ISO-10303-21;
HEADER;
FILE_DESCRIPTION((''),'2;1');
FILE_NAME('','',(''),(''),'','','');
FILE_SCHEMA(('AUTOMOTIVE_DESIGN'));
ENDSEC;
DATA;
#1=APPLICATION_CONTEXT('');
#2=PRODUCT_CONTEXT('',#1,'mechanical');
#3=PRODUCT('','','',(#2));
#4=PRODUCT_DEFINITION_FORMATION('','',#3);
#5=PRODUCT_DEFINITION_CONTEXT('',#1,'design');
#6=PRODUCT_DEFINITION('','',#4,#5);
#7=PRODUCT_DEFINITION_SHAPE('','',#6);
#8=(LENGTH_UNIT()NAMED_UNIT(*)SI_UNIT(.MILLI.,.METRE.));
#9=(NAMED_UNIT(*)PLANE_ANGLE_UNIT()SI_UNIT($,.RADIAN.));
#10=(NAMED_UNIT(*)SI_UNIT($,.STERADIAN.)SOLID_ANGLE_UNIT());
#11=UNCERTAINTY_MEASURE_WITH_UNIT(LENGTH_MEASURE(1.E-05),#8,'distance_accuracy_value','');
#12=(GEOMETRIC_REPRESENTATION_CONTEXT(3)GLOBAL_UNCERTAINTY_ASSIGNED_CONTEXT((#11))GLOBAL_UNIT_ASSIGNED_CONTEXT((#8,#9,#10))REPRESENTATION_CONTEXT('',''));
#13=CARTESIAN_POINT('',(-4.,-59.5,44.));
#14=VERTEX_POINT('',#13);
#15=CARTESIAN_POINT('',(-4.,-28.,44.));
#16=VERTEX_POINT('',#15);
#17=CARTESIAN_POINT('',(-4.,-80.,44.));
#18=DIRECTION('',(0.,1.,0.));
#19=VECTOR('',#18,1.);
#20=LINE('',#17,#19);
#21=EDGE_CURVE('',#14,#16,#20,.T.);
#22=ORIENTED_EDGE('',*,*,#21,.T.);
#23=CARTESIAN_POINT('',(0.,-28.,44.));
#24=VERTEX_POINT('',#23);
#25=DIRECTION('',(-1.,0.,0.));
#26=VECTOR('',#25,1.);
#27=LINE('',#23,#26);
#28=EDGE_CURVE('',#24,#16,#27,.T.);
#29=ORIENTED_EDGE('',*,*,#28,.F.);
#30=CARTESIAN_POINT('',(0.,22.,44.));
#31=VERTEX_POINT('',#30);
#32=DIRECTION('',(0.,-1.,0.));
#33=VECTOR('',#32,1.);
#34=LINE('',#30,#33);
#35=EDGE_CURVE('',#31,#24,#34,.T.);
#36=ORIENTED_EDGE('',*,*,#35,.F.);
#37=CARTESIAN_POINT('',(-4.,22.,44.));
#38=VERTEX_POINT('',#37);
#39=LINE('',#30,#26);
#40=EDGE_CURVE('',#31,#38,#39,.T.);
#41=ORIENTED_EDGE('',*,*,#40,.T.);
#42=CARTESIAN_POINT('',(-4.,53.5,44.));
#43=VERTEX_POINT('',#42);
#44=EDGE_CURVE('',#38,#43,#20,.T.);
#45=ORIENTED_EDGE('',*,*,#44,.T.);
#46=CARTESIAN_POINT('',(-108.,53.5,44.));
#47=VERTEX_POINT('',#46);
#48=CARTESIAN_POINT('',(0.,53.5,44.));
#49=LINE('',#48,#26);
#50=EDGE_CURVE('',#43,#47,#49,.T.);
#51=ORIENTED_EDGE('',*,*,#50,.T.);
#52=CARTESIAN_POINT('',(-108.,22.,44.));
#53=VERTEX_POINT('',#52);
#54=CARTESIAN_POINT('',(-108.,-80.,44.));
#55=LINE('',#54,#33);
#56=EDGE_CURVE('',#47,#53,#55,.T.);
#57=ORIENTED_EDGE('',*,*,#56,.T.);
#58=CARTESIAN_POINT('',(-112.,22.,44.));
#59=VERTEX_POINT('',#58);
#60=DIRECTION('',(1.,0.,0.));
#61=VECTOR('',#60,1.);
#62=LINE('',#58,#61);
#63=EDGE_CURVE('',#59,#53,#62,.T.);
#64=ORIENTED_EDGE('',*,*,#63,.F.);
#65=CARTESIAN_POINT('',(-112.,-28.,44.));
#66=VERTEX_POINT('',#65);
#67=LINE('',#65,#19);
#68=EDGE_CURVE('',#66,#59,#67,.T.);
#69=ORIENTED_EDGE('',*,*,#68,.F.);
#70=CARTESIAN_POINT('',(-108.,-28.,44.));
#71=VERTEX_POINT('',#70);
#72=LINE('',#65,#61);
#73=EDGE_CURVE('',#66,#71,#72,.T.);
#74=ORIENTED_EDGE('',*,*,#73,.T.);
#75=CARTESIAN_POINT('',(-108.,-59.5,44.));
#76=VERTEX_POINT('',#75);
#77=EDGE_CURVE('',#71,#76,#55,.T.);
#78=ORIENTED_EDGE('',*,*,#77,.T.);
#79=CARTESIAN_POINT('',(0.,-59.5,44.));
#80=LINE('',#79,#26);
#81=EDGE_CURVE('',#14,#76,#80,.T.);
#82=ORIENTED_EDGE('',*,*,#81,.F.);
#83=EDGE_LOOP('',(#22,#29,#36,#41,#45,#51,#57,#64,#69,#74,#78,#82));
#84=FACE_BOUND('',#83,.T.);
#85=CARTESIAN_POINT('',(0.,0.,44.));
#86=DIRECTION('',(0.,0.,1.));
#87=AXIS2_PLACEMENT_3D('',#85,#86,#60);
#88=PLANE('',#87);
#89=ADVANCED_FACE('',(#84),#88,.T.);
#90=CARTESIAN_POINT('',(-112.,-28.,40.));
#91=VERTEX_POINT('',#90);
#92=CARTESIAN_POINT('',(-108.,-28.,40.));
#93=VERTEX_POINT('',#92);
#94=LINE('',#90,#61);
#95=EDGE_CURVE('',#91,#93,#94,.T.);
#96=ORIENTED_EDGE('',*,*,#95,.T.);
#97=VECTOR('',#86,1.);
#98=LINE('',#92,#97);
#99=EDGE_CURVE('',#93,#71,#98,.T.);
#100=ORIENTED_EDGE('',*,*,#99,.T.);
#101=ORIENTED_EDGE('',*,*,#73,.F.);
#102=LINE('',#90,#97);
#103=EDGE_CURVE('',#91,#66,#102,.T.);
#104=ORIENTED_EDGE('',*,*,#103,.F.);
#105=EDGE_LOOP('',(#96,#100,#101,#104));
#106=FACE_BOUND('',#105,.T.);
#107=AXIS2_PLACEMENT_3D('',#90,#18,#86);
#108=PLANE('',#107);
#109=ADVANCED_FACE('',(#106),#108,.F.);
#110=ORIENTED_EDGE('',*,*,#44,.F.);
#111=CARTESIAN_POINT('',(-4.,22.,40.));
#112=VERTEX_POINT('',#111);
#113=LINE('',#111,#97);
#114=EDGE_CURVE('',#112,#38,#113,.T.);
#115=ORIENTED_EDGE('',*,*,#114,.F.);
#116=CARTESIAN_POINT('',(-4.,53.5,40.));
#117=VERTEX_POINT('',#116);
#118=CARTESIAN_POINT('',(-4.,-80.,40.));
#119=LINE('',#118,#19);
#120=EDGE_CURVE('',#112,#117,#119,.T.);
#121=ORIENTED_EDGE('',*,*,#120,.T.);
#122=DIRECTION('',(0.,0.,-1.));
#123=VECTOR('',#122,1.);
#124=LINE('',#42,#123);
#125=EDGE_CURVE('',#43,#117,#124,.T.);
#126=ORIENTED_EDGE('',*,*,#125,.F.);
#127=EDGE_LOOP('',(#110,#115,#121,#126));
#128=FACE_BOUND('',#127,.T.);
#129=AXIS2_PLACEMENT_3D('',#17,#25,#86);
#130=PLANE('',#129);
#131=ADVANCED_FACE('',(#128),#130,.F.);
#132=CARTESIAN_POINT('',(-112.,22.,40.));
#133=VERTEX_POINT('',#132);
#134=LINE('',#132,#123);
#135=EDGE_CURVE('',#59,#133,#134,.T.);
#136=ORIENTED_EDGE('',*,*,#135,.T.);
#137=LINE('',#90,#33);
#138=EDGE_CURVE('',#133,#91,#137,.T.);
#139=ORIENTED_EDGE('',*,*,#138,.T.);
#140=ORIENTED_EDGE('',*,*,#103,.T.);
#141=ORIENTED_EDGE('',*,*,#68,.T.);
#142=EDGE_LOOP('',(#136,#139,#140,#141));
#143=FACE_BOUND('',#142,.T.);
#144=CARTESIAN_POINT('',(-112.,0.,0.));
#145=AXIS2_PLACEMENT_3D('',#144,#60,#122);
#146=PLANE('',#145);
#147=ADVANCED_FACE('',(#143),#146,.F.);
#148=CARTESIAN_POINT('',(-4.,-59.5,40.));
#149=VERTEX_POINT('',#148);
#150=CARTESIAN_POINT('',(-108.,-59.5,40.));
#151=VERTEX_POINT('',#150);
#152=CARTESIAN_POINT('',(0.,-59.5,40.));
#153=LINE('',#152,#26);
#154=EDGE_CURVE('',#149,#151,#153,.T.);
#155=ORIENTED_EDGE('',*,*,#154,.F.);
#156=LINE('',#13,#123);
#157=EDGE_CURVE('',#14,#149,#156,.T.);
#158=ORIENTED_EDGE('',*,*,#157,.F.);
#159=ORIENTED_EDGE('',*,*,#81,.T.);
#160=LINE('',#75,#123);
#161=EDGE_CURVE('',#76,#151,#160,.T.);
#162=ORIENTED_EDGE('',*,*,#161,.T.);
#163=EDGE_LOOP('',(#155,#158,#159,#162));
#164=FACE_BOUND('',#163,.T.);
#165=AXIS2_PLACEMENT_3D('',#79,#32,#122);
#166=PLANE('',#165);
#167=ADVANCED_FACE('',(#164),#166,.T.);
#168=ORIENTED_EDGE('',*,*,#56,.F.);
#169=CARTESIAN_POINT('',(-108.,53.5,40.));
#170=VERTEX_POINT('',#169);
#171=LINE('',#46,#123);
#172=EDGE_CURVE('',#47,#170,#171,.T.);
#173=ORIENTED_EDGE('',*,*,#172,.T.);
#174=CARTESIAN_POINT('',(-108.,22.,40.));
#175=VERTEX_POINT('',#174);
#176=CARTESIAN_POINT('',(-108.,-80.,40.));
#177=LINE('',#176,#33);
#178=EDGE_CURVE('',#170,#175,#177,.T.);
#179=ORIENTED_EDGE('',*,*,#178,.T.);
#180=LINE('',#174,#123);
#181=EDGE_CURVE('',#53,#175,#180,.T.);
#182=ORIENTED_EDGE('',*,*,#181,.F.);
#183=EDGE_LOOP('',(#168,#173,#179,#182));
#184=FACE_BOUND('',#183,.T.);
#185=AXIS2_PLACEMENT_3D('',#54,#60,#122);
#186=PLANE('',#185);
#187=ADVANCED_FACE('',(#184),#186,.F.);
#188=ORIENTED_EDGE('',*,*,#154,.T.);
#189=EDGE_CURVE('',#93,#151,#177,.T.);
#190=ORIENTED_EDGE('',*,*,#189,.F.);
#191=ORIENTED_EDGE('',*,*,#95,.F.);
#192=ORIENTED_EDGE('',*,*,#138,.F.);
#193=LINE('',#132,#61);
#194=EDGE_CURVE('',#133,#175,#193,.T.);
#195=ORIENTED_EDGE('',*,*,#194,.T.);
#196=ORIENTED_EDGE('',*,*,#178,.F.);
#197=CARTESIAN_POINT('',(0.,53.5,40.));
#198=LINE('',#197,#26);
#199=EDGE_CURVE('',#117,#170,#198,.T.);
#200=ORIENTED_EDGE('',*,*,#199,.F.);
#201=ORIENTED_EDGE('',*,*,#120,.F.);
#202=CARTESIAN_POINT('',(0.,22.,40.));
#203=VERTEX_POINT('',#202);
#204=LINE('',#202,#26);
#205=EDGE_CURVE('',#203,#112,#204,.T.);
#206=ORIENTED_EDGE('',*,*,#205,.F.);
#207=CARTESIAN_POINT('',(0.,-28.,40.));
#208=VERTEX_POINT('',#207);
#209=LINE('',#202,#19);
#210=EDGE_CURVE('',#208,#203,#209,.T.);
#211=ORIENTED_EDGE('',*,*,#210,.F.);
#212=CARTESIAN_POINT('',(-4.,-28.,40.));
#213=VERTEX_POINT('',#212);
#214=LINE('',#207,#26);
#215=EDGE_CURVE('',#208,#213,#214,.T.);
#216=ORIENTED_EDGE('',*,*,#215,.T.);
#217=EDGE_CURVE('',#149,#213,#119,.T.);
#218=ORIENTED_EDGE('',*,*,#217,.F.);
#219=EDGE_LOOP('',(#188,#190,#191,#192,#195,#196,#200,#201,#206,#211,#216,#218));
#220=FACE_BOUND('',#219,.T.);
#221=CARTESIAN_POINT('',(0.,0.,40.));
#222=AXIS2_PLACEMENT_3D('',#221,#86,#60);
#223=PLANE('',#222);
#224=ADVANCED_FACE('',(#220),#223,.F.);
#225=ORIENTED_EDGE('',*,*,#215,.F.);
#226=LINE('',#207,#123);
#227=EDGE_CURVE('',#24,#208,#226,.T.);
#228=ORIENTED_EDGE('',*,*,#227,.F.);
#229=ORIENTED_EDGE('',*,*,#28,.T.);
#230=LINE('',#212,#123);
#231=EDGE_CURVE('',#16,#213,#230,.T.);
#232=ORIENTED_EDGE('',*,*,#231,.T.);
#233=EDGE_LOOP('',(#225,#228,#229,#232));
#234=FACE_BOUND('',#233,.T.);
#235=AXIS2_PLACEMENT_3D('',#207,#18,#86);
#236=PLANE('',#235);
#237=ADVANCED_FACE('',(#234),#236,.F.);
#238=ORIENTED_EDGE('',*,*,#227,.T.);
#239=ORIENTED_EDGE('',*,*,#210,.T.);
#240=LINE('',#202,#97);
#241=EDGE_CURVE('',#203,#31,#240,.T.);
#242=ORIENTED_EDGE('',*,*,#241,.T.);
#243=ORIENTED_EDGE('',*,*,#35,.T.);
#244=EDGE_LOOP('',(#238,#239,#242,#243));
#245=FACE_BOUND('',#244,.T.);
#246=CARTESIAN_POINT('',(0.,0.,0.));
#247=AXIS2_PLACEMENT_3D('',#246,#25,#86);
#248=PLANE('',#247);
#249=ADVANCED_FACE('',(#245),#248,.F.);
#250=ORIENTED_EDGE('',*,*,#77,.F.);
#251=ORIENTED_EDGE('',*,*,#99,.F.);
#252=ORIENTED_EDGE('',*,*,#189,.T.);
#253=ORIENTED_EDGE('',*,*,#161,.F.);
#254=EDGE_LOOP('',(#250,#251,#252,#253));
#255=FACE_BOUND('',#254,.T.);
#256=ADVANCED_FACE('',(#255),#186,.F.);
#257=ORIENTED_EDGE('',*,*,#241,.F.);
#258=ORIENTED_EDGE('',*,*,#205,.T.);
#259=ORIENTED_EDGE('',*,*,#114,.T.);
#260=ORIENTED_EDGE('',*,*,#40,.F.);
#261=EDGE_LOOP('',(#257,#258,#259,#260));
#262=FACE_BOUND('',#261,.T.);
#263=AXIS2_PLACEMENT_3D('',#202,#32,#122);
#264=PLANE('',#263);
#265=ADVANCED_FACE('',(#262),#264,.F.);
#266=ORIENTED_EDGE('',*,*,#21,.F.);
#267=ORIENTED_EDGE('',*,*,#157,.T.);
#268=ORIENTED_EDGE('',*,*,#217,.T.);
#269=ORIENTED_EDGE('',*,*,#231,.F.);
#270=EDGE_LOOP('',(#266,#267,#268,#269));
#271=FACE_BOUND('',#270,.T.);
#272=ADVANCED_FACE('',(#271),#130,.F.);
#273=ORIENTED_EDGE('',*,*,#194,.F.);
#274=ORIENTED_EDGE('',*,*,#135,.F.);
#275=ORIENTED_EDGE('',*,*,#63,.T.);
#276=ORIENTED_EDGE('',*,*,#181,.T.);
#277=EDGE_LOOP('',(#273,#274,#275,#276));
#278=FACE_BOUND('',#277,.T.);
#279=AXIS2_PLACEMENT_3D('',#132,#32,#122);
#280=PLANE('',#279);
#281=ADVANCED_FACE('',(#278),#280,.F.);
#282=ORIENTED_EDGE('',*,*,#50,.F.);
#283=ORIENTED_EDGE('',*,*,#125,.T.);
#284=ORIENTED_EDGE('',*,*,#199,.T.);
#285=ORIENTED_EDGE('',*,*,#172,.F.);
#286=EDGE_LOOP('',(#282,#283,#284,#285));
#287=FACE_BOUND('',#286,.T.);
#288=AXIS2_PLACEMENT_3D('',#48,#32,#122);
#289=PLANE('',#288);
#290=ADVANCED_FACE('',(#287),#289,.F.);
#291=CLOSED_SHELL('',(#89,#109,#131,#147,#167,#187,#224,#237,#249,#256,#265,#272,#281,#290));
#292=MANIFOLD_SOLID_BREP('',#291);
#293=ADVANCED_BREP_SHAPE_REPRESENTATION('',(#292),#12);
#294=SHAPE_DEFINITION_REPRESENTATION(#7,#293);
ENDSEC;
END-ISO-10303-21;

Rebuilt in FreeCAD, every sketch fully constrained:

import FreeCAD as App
import Part
import Sketcher
from FreeCAD import Vector
Q = App.Units.Quantity


def add_polygon(sketch, points):
    """Adds a closed chain of lines whose ends are joined by coincident constraints."""
    first, n = sketch.GeometryCount, len(points)
    for a, b in zip(points, points[1:] + points[:1]):
        sketch.addGeometry(Part.LineSegment(App.Vector(*a, 0), App.Vector(*b, 0)), False)
    for i in range(n):
        sketch.addConstraint(Sketcher.Constraint("Coincident", first + i, 2, first + (i + 1) % n, 1))

doc = App.newDocument("Part")
body = doc.addObject("PartDesign::Body", "Body")

# Sketch on XY plane
sketch1 = body.newObject("Sketcher::SketchObject", "Sketch")
sketch1.AttachmentSupport = (doc.getObject("XY_Plane"), [""])
sketch1.MapMode = "FlatFace"
sketch1.AttachmentOffset = App.Placement(Vector(0, 0, 40), App.Rotation())
add_polygon(sketch1, [(-108, 83), (-108, -80), (-4, -80), (-4, 83)])  # lines 0-3
sketch1.addConstraint(Sketcher.Constraint("Vertical", 0))
sketch1.addConstraint(Sketcher.Constraint("Horizontal", 1))
sketch1.addConstraint(Sketcher.Constraint("Vertical", 2))
sketch1.addConstraint(Sketcher.Constraint("Horizontal", 3))
sketch1.addConstraint(Sketcher.Constraint("DistanceX", 1, 1, 1, 2, Q("104 mm")))
sketch1.addConstraint(Sketcher.Constraint("DistanceY", 0, 2, 0, 1, Q("163 mm")))
sketch1.addConstraint(Sketcher.Constraint("DistanceX", 0, 2, -1, 1, Q("108 mm")))
sketch1.addConstraint(Sketcher.Constraint("DistanceY", 0, 2, -1, 1, Q("80 mm")))
pad1 = body.newObject("PartDesign::Pad", "Pad")
pad1.Profile = sketch1
pad1.Length = 4

# Sketch on XY plane
sketch2 = body.newObject("Sketcher::SketchObject", "Sketch001")
sketch2.AttachmentSupport = (doc.getObject("XY_Plane"), [""])
sketch2.MapMode = "FlatFace"
sketch2.AttachmentOffset = App.Placement(Vector(0, 0, 40), App.Rotation())
add_polygon(sketch2, [(-4, 83), (-4, 54), (-108, 54), (-108, 83)])  # lines 0-3
add_polygon(sketch2, [(-4, -60), (-4, -80), (-108, -80), (-108, -60)])  # lines 4-7
sketch2.addConstraint(Sketcher.Constraint("Vertical", 0))
sketch2.addConstraint(Sketcher.Constraint("Horizontal", 1))
sketch2.addConstraint(Sketcher.Constraint("Vertical", 2))
sketch2.addConstraint(Sketcher.Constraint("Horizontal", 3))
sketch2.addConstraint(Sketcher.Constraint("Vertical", 4))
sketch2.addConstraint(Sketcher.Constraint("Horizontal", 5))
sketch2.addConstraint(Sketcher.Constraint("Vertical", 6))
sketch2.addConstraint(Sketcher.Constraint("Horizontal", 7))
sketch2.addConstraint(Sketcher.Constraint("Vertical", 3, 2, 4, 2))
sketch2.addConstraint(Sketcher.Constraint("Vertical", 2, 2, 5, 2))
sketch2.addConstraint(Sketcher.Constraint("DistanceX", 1, 2, 1, 1, Q("104 mm")))
sketch2.addConstraint(Sketcher.Constraint("DistanceY", 0, 2, 0, 1, Q("29.5 mm")))
sketch2.addConstraint(Sketcher.Constraint("DistanceY", 4, 2, 4, 1, Q("20.5 mm")))
sketch2.addConstraint(Sketcher.Constraint("DistanceX", 0, 2, -1, 1, Q("4 mm")))
sketch2.addConstraint(Sketcher.Constraint("DistanceY", -1, 1, 2, 2, Q("83 mm")))
sketch2.addConstraint(Sketcher.Constraint("DistanceY", 4, 2, -1, 1, Q("80 mm")))
pocket1 = body.newObject("PartDesign::Pocket", "Pocket")
pocket1.Profile = sketch2
pocket1.Length = 4
pocket1.Reversed = True

# Sketch on YZ plane
sketch3 = body.newObject("Sketcher::SketchObject", "Sketch002")
sketch3.AttachmentSupport = (doc.getObject("YZ_Plane"), [""])
sketch3.MapMode = "FlatFace"
sketch3.AttachmentOffset = App.Placement(Vector(0, 0, -108), App.Rotation())
add_polygon(sketch3, [(22, 40), (-28, 40), (-28, 44), (22, 44)])  # lines 0-3
sketch3.addConstraint(Sketcher.Constraint("Horizontal", 0))
sketch3.addConstraint(Sketcher.Constraint("Vertical", 1))
sketch3.addConstraint(Sketcher.Constraint("Horizontal", 2))
sketch3.addConstraint(Sketcher.Constraint("Vertical", 3))
sketch3.addConstraint(Sketcher.Constraint("DistanceX", 0, 2, 0, 1, Q("50 mm")))
sketch3.addConstraint(Sketcher.Constraint("DistanceY", 1, 1, 1, 2, Q("4 mm")))
sketch3.addConstraint(Sketcher.Constraint("DistanceX", 0, 2, -1, 1, Q("28 mm")))
sketch3.addConstraint(Sketcher.Constraint("DistanceY", -1, 1, 0, 2, Q("40 mm")))
pad2 = body.newObject("PartDesign::Pad", "Pad001")
pad2.Profile = sketch3
pad2.Length = 4
pad2.Reversed = True

# Sketch on YZ plane
sketch4 = body.newObject("Sketcher::SketchObject", "Sketch003")
sketch4.AttachmentSupport = (doc.getObject("YZ_Plane"), [""])
sketch4.MapMode = "FlatFace"
sketch4.AttachmentOffset = App.Placement(Vector(0, 0, -4), App.Rotation())
add_polygon(sketch4, [(22, 44), (-28, 44), (-28, 40), (22, 40)])  # lines 0-3
sketch4.addConstraint(Sketcher.Constraint("Horizontal", 0))
sketch4.addConstraint(Sketcher.Constraint("Vertical", 1))
sketch4.addConstraint(Sketcher.Constraint("Horizontal", 2))
sketch4.addConstraint(Sketcher.Constraint("Vertical", 3))
sketch4.addConstraint(Sketcher.Constraint("DistanceX", 0, 2, 0, 1, Q("50 mm")))
sketch4.addConstraint(Sketcher.Constraint("DistanceY", 1, 2, 1, 1, Q("4 mm")))
sketch4.addConstraint(Sketcher.Constraint("DistanceX", 0, 2, -1, 1, Q("28 mm")))
sketch4.addConstraint(Sketcher.Constraint("DistanceY", -1, 1, 0, 2, Q("44 mm")))
pad3 = body.newObject("PartDesign::Pad", "Pad002")
pad3.Profile = sketch4
pad3.Length = 4

doc.recompute()
